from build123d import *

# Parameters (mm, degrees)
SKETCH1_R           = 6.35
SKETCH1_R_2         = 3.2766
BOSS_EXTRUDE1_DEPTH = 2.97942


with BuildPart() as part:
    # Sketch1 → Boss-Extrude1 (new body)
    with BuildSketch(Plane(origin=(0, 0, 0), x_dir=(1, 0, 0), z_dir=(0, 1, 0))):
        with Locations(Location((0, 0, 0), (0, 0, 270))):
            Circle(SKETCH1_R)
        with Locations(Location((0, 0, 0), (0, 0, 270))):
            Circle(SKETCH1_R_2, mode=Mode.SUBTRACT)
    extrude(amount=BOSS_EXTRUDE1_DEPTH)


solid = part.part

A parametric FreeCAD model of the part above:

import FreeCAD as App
import Part
import Sketcher

V = App.Vector
Q = App.Units.Quantity

doc = App.newDocument("Part")
body = doc.addObject("PartDesign::Body", "Body")

# Sketch on XZ plane
sketch1 = body.newObject("Sketcher::SketchObject", "Sketch")
sketch1.AttachmentSupport = (doc.getObject("XZ_Plane"), [""])
sketch1.MapMode = "FlatFace"
sketch1.addGeometry([
    Part.Circle(V(0, 0, 0), V(0, 0, 1), 6.3),
    Part.Circle(V(0, 0, 0), V(0, 0, 1), 3.3),
], False)
sketch1.addConstraint([
    Sketcher.Constraint("Coincident", 0, 3, -1, 1),
    Sketcher.Constraint("Coincident", 1, 3, -1, 1),
    Sketcher.Constraint("Diameter", 0, Q("0.5 in")),
    Sketcher.Constraint("Diameter", 1, Q("0.258 in")),
])
pad1 = body.newObject("PartDesign::Pad", "Pad")
pad1.Profile = sketch1
pad1.Length = Q("0.1173 in")
pad1.Reversed = True

doc.recompute()
